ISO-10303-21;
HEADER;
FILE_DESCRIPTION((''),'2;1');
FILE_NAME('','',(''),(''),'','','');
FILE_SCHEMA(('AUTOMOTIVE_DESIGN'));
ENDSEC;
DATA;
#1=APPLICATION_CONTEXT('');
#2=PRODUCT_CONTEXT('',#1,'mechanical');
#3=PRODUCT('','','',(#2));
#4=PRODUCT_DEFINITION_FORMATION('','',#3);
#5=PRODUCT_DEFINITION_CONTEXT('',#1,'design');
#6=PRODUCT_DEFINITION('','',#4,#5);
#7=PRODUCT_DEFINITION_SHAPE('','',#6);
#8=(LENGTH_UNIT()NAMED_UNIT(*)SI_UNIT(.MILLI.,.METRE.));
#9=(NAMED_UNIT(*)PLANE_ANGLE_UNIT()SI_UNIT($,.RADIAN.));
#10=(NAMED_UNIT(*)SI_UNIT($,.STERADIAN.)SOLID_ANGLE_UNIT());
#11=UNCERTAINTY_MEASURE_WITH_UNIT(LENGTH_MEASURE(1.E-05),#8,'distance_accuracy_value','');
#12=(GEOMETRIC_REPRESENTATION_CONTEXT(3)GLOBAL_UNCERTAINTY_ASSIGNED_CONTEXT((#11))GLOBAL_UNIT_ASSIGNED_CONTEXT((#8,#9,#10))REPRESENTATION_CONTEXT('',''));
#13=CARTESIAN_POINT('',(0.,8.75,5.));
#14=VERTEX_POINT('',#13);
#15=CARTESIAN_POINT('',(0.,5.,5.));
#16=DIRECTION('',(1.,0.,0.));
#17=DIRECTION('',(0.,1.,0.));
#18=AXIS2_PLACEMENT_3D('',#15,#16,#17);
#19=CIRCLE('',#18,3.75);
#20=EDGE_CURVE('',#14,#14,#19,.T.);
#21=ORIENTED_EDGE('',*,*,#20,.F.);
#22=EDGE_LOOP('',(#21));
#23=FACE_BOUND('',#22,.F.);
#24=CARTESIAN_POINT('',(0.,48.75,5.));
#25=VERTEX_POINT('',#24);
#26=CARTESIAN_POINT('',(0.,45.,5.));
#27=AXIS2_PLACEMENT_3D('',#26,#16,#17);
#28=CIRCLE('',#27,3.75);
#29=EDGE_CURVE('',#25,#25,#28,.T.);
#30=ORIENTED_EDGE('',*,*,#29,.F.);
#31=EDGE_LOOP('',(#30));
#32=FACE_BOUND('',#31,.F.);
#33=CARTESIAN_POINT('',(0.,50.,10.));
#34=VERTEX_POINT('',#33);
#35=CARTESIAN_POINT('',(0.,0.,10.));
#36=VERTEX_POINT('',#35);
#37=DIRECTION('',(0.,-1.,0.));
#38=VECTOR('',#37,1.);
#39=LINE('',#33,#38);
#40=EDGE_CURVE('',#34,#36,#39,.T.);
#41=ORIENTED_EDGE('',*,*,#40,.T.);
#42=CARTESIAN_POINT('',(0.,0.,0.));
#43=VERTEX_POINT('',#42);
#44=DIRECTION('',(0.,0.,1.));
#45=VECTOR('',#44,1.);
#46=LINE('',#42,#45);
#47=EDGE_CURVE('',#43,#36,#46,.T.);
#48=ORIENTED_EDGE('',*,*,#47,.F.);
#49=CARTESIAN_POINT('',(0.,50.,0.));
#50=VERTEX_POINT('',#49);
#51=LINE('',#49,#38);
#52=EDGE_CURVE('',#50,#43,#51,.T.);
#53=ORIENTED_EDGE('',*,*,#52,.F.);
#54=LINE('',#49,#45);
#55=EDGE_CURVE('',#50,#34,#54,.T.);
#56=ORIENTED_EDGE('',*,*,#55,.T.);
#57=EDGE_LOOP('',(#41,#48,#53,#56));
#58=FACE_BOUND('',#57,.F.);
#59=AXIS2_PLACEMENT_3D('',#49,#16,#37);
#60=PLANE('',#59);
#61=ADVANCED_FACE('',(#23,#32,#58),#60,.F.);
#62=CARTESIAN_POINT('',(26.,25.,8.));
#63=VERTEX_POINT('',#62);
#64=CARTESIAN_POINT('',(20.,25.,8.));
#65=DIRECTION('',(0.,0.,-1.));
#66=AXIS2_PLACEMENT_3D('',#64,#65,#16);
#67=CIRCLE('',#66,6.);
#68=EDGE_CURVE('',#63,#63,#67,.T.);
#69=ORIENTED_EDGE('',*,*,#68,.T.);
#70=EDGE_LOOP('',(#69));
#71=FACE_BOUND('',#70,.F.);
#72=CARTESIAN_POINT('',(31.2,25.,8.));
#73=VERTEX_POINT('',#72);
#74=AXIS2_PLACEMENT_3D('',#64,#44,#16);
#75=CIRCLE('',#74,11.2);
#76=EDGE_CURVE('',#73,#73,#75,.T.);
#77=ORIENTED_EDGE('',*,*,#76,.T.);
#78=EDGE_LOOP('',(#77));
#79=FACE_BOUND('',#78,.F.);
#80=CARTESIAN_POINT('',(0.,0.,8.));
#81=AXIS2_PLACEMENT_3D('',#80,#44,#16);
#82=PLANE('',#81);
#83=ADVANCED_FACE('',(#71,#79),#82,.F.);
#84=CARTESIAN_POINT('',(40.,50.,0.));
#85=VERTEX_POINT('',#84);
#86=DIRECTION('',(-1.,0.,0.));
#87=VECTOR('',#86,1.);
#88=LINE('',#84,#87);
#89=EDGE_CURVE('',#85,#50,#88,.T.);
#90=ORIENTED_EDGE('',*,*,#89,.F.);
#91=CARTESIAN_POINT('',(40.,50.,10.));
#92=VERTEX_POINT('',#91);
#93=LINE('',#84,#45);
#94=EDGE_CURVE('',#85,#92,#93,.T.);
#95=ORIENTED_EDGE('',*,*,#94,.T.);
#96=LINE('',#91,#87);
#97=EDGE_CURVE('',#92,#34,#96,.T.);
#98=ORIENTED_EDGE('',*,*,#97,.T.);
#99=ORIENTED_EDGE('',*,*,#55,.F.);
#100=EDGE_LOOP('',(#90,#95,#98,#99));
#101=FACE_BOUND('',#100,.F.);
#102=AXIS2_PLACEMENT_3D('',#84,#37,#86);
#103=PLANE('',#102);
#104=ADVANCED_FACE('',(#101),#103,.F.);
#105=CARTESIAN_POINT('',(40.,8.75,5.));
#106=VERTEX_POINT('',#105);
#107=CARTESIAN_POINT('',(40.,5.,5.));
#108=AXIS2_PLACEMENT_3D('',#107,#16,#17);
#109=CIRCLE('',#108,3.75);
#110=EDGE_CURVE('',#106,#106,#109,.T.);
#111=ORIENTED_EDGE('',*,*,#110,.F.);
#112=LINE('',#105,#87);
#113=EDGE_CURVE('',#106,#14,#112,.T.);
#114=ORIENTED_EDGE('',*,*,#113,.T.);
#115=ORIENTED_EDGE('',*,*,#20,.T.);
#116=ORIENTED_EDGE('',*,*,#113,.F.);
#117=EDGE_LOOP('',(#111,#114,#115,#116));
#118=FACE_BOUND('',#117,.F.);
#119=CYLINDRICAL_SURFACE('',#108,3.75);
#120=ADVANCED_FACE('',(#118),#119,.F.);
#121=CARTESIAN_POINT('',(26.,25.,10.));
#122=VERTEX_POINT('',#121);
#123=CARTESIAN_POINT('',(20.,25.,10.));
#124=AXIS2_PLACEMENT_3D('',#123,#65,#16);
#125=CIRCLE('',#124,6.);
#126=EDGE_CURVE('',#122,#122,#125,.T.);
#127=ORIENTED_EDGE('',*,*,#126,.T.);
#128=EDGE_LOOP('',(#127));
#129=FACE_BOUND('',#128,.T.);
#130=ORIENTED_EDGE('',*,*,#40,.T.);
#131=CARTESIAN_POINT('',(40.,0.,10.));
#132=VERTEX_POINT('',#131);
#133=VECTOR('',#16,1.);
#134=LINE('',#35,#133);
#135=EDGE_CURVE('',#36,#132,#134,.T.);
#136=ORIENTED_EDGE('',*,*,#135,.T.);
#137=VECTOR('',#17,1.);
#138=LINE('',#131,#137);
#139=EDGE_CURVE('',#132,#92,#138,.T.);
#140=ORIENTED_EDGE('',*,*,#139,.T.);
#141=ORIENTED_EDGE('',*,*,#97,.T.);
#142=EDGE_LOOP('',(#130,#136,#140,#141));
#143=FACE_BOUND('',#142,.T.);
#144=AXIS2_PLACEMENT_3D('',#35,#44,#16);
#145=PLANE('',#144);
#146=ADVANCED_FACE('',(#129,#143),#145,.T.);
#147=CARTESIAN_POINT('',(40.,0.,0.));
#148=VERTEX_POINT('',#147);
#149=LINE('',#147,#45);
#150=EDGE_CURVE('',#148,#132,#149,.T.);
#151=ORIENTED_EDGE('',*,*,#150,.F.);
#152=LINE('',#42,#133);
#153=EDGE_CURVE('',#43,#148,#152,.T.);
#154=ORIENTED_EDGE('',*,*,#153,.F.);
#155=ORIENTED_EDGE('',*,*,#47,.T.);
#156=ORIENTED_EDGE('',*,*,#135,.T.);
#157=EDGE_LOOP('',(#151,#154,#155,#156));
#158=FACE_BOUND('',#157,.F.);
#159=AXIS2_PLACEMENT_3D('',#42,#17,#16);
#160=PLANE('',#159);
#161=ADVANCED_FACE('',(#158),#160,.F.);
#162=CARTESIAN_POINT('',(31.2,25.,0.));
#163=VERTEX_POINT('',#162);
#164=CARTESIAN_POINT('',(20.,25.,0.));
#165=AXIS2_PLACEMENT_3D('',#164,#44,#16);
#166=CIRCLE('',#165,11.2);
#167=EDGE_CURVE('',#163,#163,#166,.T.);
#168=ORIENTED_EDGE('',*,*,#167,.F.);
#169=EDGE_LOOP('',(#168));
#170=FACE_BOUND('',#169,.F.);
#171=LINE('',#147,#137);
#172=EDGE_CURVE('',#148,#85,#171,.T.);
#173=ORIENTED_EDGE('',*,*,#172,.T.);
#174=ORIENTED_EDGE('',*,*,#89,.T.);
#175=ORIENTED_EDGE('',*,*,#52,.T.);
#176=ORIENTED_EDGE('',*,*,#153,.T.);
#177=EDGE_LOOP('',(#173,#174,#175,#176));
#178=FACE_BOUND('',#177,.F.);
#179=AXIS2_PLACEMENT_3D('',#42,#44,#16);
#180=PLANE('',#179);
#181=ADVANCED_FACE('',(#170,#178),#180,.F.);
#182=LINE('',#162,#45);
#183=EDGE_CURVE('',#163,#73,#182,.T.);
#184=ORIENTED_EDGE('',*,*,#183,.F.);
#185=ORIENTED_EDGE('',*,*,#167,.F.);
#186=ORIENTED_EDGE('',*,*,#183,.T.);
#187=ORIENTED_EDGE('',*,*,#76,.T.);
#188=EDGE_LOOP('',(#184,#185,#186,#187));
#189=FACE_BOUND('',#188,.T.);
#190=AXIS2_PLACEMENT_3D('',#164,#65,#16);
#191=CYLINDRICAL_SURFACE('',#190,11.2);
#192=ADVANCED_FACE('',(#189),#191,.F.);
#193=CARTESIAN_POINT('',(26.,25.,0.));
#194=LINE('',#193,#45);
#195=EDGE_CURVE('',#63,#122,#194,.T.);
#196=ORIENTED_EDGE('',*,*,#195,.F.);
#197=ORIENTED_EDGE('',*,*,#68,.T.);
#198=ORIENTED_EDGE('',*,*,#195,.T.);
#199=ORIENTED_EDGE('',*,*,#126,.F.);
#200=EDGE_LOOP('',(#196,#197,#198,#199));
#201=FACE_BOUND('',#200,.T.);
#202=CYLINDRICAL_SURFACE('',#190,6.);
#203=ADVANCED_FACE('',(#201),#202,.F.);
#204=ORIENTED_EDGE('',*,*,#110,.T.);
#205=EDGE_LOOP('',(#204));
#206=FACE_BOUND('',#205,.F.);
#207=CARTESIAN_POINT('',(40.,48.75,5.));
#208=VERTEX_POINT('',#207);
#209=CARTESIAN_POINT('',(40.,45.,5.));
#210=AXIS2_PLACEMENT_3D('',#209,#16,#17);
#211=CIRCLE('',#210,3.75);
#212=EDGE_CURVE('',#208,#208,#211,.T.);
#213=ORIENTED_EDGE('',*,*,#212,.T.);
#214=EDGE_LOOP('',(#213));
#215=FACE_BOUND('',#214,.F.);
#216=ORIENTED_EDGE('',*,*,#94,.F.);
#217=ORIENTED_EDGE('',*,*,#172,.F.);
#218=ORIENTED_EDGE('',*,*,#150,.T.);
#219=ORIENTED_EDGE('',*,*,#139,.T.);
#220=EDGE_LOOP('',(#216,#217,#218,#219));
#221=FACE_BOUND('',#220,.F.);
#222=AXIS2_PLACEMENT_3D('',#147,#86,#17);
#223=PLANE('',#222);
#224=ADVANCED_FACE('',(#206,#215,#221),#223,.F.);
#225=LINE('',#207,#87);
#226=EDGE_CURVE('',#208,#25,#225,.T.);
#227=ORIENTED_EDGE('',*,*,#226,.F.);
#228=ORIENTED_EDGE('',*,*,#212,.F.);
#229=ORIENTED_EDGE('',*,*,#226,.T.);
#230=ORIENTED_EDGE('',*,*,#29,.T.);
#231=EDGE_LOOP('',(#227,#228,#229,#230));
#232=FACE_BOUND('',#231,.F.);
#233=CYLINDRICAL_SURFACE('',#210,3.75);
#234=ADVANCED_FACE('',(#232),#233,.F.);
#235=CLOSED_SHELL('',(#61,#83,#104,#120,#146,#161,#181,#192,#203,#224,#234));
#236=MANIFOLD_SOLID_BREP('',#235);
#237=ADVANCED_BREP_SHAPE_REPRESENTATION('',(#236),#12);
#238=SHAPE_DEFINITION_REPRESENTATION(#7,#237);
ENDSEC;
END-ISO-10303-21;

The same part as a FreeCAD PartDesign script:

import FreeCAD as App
import Part
import Sketcher
Q = App.Units.Quantity

doc = App.newDocument("Part")
body = doc.addObject("PartDesign::Body", "Body")

sketch1 = body.newObject("Sketcher::SketchObject", "Sketch")
sketch1.AttachmentSupport = (doc.getObject("XY_Plane"), [""])
sketch1.MapMode = "FlatFace"
sketch1.addGeometry(Part.LineSegment(App.Vector(0, 50, 0), App.Vector(0, 0, 0)), False)
sketch1.addGeometry(Part.LineSegment(App.Vector(0, 0, 0), App.Vector(40, 0, 0)), False)
sketch1.addGeometry(Part.LineSegment(App.Vector(40, 0, 0), App.Vector(40, 50, 0)), False)
sketch1.addGeometry(Part.LineSegment(App.Vector(40, 50, 0), App.Vector(0, 50, 0)), False)
sketch1.addConstraint(Sketcher.Constraint("Coincident", 0, 2, 1, 1))
sketch1.addConstraint(Sketcher.Constraint("Coincident", 1, 2, 2, 1))
sketch1.addConstraint(Sketcher.Constraint("Coincident", 2, 2, 3, 1))
sketch1.addConstraint(Sketcher.Constraint("Coincident", 3, 2, 0, 1))
sketch1.addConstraint(Sketcher.Constraint("Vertical", 0))
sketch1.addConstraint(Sketcher.Constraint("Horizontal", 1))
sketch1.addConstraint(Sketcher.Constraint("Vertical", 2))
sketch1.addConstraint(Sketcher.Constraint("Horizontal", 3))
sketch1.addConstraint(Sketcher.Constraint("Coincident", 0, 2, -1, 1))
sketch1.addConstraint(Sketcher.Constraint("DistanceX", 1, 1, 1, 2, Q("40 mm")))
sketch1.addConstraint(Sketcher.Constraint("DistanceY", 0, 2, 0, 1, Q("50 mm")))
pad1 = body.newObject("PartDesign::Pad", "Pad")
pad1.Profile = sketch1
pad1.Length = 10

sketch2 = body.newObject("Sketcher::SketchObject", "Sketch001")
sketch2.AttachmentSupport = (doc.getObject("XY_Plane"), [""])
sketch2.MapMode = "FlatFace"
sketch2.addGeometry(Part.Circle(App.Vector(20, 25, 0), App.Vector(0, 0, 1), 11.2), False)
sketch2.addConstraint(Sketcher.Constraint("Diameter", 0, Q("22.4 mm")))
sketch2.addConstraint(Sketcher.Constraint("DistanceX", -1, 1, 0, 3, Q("20 mm")))
sketch2.addConstraint(Sketcher.Constraint("DistanceY", -1, 1, 0, 3, Q("25 mm")))
pocket1 = body.newObject("PartDesign::Pocket", "Pocket")
pocket1.Profile = sketch2
pocket1.Length = 8
pocket1.Reversed = True

sketch3 = body.newObject("Sketcher::SketchObject", "Sketch002")
sketch3.AttachmentSupport = (doc.getObject("YZ_Plane"), [""])
sketch3.MapMode = "FlatFace"
sketch3.AttachmentOffset = App.Placement(App.Vector(0, 0, 40), App.Rotation())
sketch3.addGeometry(Part.Circle(App.Vector(5, 5, 0), App.Vector(0, 0, 1), 3.75), False)
sketch3.addConstraint(Sketcher.Constraint("Diameter", 0, Q("7.5 mm")))
sketch3.addConstraint(Sketcher.Constraint("DistanceX", -1, 1, 0, 3, Q("5 mm")))
sketch3.addConstraint(Sketcher.Constraint("DistanceY", -1, 1, 0, 3, Q("5 mm")))
pocket2 = body.newObject("PartDesign::Pocket", "Pocket001")
pocket2.Profile = sketch3
pocket2.Length = 50

sketch4 = body.newObject("Sketcher::SketchObject", "Sketch003")
sketch4.AttachmentSupport = (doc.getObject("YZ_Plane"), [""])
sketch4.MapMode = "FlatFace"
sketch4.AttachmentOffset = App.Placement(App.Vector(0, 0, 40), App.Rotation())
sketch4.addGeometry(Part.Circle(App.Vector(45, 5, 0), App.Vector(0, 0, 1), 3.75), False)
sketch4.addConstraint(Sketcher.Constraint("Diameter", 0, Q("7.5 mm")))
sketch4.addConstraint(Sketcher.Constraint("DistanceY", -1, 1, 0, 3, Q("5 mm")))
sketch4.addConstraint(Sketcher.Constraint("DistanceX", -1, 1, 0, 3, Q("45 mm")))
pocket3 = body.newObject("PartDesign::Pocket", "Pocket002")
pocket3.Profile = sketch4
pocket3.Length = 50

sketch5 = body.newObject("Sketcher::SketchObject", "Sketch004")
sketch5.AttachmentSupport = (doc.getObject("XY_Plane"), [""])
sketch5.MapMode = "FlatFace"
sketch5.addGeometry(Part.Circle(App.Vector(20, 25, 0), App.Vector(0, 0, 1), 6), False)
sketch5.addConstraint(Sketcher.Constraint("Diameter", 0, Q("12 mm")))
sketch5.addConstraint(Sketcher.Constraint("DistanceX", -1, 1, 0, 3, Q("20 mm")))
sketch5.addConstraint(Sketcher.Constraint("DistanceY", -1, 1, 0, 3, Q("25 mm")))
pocket4 = body.newObject("PartDesign::Pocket", "Pocket003")
pocket4.Profile = sketch5
pocket4.Length = 20
pocket4.Reversed = True

doc.recompute()
